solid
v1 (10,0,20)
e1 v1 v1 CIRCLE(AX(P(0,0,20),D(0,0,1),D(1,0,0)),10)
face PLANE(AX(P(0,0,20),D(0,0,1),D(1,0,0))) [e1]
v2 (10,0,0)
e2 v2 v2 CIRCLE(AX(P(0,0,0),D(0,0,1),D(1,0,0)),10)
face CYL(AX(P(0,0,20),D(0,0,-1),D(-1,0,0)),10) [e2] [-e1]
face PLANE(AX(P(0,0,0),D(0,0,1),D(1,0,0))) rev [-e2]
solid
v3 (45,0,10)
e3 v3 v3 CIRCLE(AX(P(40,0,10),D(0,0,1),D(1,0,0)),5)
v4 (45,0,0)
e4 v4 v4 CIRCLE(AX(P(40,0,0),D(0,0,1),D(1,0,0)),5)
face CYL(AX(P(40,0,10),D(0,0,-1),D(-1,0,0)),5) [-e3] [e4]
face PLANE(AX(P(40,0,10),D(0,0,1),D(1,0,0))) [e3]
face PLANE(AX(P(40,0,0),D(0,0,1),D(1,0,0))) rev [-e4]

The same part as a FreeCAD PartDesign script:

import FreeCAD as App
import Part
import Sketcher

V = App.Vector

doc = App.newDocument("Part")
body = doc.addObject("PartDesign::Body", "Body")

# Sketch on XY plane
sketch1 = doc.addObject("Sketcher::SketchObject", "Sketch")
body.addObject(sketch1)
sketch1.AttachmentSupport = (doc.XY_Plane, [""])
sketch1.MapMode = "FlatFace"
sketch1.addGeometry(Part.Circle(V(0, 0, 0), V(0, 0, 1), 10), False)
sketch1.addConstraint([
    Sketcher.Constraint("Coincident", 0, 3, -1, 1),
    Sketcher.Constraint("Diameter", 0, 20.0),
])
pad1 = doc.addObject("PartDesign::Pad", "Pad")
body.addObject(pad1)
pad1.Profile = sketch1
pad1.Length = 20
body2 = doc.addObject("PartDesign::Body", "Body001")

# Sketch on XY plane
sketch2 = doc.addObject("Sketcher::SketchObject", "Sketch001")
body2.addObject(sketch2)
sketch2.AttachmentSupport = (doc.getObject("XY_Plane001"), [""])
sketch2.MapMode = "FlatFace"
sketch2.addGeometry(Part.Circle(V(40, 0, 0), V(0, 0, 1), 5), False)
sketch2.addConstraint([
    Sketcher.Constraint("PointOnObject", 0, 3, -1),
    Sketcher.Constraint("Diameter", 0, 10.0),
    Sketcher.Constraint("DistanceX", -1, 1, 0, 3, 40.0),
])
pad2 = doc.addObject("PartDesign::Pad", "Pad001")
body2.addObject(pad2)
pad2.Profile = sketch2
pad2.Length = 10

doc.recompute()
